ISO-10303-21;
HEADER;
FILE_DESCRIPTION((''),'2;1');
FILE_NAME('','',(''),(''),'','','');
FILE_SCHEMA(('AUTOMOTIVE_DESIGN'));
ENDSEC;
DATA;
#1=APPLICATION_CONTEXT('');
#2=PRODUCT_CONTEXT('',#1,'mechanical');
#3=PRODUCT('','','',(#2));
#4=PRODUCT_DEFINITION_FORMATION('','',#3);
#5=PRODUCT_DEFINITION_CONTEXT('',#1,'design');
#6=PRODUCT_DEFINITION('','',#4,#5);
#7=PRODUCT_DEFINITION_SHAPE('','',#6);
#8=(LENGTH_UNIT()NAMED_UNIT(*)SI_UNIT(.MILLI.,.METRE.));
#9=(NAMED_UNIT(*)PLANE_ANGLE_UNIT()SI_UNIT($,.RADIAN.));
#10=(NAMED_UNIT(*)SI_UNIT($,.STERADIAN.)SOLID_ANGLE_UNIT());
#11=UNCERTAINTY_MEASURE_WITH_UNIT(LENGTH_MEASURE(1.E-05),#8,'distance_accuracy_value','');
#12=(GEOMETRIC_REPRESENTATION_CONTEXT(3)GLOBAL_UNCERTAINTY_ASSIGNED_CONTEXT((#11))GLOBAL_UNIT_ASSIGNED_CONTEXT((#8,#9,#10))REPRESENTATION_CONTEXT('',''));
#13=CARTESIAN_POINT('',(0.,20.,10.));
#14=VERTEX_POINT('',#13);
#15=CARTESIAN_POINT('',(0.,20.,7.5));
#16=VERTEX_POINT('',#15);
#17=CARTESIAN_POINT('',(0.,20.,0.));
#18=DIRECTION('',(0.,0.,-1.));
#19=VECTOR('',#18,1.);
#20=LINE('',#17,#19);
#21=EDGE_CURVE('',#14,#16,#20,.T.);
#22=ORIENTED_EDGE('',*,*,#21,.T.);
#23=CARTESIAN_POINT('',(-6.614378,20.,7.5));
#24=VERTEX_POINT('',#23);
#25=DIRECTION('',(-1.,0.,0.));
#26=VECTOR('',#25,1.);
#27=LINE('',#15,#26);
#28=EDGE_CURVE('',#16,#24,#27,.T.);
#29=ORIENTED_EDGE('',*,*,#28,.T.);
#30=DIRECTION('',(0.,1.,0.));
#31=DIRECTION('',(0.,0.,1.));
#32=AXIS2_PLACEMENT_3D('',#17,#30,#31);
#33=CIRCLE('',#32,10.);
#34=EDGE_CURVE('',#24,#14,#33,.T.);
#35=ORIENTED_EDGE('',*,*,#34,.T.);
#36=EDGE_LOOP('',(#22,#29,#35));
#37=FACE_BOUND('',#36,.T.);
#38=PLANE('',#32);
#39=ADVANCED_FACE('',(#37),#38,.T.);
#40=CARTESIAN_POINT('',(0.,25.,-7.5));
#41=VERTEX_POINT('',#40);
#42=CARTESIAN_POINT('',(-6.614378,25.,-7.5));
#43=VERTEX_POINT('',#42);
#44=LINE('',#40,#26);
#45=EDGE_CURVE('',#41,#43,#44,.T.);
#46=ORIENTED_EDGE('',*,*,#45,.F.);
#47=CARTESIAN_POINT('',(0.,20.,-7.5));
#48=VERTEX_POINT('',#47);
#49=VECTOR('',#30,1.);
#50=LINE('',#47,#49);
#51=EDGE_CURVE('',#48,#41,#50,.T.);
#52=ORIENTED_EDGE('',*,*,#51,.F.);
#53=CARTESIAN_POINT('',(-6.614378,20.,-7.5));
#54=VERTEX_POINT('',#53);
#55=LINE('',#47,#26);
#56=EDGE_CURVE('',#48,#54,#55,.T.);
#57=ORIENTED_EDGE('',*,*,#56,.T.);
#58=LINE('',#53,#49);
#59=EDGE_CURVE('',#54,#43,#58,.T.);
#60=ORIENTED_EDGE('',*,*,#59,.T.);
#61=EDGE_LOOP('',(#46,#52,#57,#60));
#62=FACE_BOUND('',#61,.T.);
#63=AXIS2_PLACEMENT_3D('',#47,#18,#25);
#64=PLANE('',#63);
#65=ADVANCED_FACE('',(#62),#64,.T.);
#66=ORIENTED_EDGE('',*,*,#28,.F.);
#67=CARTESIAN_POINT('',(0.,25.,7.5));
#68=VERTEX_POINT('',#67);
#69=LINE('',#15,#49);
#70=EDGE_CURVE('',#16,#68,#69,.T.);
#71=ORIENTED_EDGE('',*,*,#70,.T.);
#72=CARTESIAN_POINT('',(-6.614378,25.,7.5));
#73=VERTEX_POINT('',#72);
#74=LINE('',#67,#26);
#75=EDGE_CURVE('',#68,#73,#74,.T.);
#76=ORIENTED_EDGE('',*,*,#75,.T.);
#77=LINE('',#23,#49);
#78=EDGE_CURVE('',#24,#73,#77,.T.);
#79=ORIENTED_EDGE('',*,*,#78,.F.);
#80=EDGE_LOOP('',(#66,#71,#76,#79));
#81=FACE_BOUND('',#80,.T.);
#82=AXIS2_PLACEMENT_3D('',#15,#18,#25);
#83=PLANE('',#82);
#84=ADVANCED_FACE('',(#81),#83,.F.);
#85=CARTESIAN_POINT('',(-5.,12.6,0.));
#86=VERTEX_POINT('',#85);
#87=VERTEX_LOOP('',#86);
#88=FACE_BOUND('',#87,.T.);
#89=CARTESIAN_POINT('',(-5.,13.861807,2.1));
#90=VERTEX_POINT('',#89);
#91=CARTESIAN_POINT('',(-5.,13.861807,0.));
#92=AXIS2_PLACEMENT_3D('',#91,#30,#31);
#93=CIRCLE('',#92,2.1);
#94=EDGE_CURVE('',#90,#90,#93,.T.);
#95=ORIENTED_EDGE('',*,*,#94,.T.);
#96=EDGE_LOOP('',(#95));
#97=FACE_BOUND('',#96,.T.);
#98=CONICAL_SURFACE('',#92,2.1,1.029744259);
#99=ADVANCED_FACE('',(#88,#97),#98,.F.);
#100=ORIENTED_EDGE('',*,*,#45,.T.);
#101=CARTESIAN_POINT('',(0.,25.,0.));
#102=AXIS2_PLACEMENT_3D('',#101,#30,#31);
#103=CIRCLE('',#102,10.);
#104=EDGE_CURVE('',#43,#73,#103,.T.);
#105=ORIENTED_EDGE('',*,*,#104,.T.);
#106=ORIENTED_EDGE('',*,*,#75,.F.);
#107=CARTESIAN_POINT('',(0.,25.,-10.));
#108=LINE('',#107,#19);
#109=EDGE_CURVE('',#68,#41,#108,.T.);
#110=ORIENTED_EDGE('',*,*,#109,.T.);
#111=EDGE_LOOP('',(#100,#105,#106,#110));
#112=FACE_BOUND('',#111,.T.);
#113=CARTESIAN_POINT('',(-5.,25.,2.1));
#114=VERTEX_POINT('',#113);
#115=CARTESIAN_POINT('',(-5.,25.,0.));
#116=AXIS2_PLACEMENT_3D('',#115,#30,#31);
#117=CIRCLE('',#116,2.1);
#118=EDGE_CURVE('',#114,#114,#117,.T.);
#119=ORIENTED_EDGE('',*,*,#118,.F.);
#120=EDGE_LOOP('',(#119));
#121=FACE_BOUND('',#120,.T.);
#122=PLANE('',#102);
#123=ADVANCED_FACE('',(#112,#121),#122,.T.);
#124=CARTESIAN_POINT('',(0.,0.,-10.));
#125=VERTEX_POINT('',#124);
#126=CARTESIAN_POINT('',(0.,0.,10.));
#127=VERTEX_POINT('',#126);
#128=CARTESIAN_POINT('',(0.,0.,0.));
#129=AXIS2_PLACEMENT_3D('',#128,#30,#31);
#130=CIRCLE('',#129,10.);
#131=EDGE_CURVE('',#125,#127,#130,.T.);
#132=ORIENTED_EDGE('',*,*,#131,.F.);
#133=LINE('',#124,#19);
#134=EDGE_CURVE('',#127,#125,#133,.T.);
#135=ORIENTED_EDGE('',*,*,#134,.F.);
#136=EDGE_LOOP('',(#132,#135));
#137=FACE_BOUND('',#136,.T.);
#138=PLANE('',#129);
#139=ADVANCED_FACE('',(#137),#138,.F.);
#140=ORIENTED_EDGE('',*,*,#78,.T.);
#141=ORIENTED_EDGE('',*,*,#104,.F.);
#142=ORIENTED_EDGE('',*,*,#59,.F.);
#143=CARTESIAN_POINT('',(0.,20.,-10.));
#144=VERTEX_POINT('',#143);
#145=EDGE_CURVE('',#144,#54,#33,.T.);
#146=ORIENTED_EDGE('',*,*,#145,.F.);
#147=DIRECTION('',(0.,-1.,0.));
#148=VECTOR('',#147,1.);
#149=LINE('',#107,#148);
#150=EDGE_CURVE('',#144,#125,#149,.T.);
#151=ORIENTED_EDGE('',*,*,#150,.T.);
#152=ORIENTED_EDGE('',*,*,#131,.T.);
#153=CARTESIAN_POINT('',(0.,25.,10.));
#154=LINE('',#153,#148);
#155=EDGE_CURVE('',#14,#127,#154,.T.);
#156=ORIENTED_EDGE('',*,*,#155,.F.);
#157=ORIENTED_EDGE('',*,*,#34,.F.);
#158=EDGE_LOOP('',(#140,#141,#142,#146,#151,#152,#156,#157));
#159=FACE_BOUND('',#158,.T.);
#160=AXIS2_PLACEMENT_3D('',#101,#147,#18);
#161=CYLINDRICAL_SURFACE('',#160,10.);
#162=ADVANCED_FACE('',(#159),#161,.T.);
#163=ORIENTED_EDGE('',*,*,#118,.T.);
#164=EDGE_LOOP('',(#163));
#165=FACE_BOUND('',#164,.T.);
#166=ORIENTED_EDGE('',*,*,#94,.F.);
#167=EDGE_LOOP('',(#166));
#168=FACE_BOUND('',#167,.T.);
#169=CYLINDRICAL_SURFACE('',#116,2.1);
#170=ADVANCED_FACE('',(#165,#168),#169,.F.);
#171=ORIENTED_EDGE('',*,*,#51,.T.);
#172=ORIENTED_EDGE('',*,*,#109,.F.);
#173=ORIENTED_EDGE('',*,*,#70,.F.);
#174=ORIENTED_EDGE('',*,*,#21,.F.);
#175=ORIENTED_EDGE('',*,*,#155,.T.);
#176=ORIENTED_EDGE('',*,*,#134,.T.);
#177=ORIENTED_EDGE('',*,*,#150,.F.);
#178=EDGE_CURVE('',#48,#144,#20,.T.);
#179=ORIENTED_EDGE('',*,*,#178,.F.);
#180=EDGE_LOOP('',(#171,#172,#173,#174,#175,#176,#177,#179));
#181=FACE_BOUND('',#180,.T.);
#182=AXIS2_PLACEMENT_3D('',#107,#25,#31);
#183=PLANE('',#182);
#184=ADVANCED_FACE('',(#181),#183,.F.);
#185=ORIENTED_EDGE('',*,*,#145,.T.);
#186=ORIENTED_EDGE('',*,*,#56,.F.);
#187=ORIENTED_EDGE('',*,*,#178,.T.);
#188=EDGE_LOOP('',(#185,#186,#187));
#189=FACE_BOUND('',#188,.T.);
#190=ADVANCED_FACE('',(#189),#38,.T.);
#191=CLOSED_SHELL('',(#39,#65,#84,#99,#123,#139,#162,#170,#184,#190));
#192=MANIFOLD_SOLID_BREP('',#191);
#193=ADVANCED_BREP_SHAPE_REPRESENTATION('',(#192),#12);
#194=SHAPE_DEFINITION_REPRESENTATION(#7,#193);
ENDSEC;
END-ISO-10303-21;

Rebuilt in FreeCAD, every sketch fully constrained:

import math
import FreeCAD as App
import Part
import Sketcher

doc = App.newDocument("Part")
body = doc.addObject("PartDesign::Body", "Body")

# Sketch on XZ plane
sketch1 = body.newObject("Sketcher::SketchObject", "Sketch")
sketch1.AttachmentSupport = (doc.getObject("XZ_Plane"), [""])
sketch1.MapMode = "FlatFace"
sketch1.addGeometry([
    Part.LineSegment(App.Vector(0, 10, 0), App.Vector(0, -10, 0)),
    Part.ArcOfCircle(Part.Circle(App.Vector(0, 0, 0), App.Vector(0, 0, 1), 10), math.radians(90), math.radians(270)),
], False)
sketch1.addConstraint([
    Sketcher.Constraint("Coincident", 0, 1, 1, 1),
    Sketcher.Constraint("Coincident", 1, 2, 0, 2),
    Sketcher.Constraint("Vertical", 0),
    Sketcher.Constraint("Coincident", 1, 3, -1, 1),
    Sketcher.Constraint("PointOnObject", 0, 1, -2),
    Sketcher.Constraint("Radius", 1, 10.0),
])
pad1 = body.newObject("PartDesign::Pad", "Pad")
pad1.Profile = sketch1
pad1.Length = 25
pad1.Reversed = True

# Sketch on XZ plane
sketch2 = body.newObject("Sketcher::SketchObject", "Sketch001")
sketch2.AttachmentSupport = (doc.getObject("XZ_Plane"), [""])
sketch2.MapMode = "FlatFace"
sketch2.AttachmentOffset = App.Placement(App.Vector(0, 0, -25), App.Rotation())
sketch2.addGeometry([
    Part.LineSegment(App.Vector(0, -7.5, 0), App.Vector(0, -10, 0)),  # 0
    Part.ArcOfCircle(Part.Circle(App.Vector(0, 0, 0), App.Vector(0, 0, 1), 10), math.radians(-131), math.radians(-90)),  # 1
    Part.LineSegment(App.Vector(-6.6, -7.5, 0), App.Vector(0, -7.5, 0)),  # 2
    Part.LineSegment(App.Vector(0, 10, 0), App.Vector(0, 7.5, 0)),  # 3
    Part.LineSegment(App.Vector(0, 7.5, 0), App.Vector(-6.6, 7.5, 0)),  # 4
    Part.ArcOfCircle(Part.Circle(App.Vector(0, 0, 0), App.Vector(0, 0, 1), 10), math.radians(90), math.radians(131)),  # 5
], False)
sketch2.addConstraint([
    Sketcher.Constraint("Coincident", 0, 2, 1, 2),
    Sketcher.Constraint("Coincident", 1, 1, 2, 1),
    Sketcher.Constraint("Coincident", 2, 2, 0, 1),
    Sketcher.Constraint("Coincident", 3, 2, 4, 1),
    Sketcher.Constraint("Coincident", 4, 2, 5, 2),
    Sketcher.Constraint("Coincident", 5, 1, 3, 1),
    Sketcher.Constraint("Vertical", 0),
    Sketcher.Constraint("Horizontal", 2),
    Sketcher.Constraint("Vertical", 3),
    Sketcher.Constraint("Horizontal", 4),
    Sketcher.Constraint("Coincident", 1, 3, -1, 1),
    Sketcher.Constraint("Coincident", 5, 3, -1, 1),
    Sketcher.Constraint("Equal", 1, 5),
    Sketcher.Constraint("Symmetric", 2, 2, 3, 2, -1, 1),
    Sketcher.Constraint("PointOnObject", 0, 2, -2),
    Sketcher.Constraint("Radius", 1, 10.0),
    Sketcher.Constraint("DistanceY", 0, 2, 0, 1, 2.5),
])
pocket1 = body.newObject("PartDesign::Pocket", "Pocket")
pocket1.Profile = sketch2
pocket1.Length = 5
pocket1.Reversed = True

# Sketch on XZ plane
sketch3 = body.newObject("Sketcher::SketchObject", "Sketch002")
sketch3.AttachmentSupport = (doc.getObject("XZ_Plane"), [""])
sketch3.MapMode = "FlatFace"
sketch3.AttachmentOffset = App.Placement(App.Vector(0, 0, -25), App.Rotation())
sketch3.addGeometry(Part.Circle(App.Vector(-5, 0, 0), App.Vector(0, 0, 1), 2.1), False)
sketch3.addConstraint([
    Sketcher.Constraint("PointOnObject", 0, 3, -1),
    Sketcher.Constraint("Diameter", 0, 4.2),
    Sketcher.Constraint("DistanceX", 0, 3, -1, 1, 5.0),
])
doc.recompute()
hole = body.newObject("PartDesign::Hole", "Hole")
hole.Profile = sketch3
hole.ThreadType = "None"
hole.Diameter = 4.2
hole.DepthType = "Dimension"
hole.Depth = 11.138193
hole.DrillPoint = "Angled"
hole.DrillPointAngle = 118
hole.Reversed = True

doc.recompute()
